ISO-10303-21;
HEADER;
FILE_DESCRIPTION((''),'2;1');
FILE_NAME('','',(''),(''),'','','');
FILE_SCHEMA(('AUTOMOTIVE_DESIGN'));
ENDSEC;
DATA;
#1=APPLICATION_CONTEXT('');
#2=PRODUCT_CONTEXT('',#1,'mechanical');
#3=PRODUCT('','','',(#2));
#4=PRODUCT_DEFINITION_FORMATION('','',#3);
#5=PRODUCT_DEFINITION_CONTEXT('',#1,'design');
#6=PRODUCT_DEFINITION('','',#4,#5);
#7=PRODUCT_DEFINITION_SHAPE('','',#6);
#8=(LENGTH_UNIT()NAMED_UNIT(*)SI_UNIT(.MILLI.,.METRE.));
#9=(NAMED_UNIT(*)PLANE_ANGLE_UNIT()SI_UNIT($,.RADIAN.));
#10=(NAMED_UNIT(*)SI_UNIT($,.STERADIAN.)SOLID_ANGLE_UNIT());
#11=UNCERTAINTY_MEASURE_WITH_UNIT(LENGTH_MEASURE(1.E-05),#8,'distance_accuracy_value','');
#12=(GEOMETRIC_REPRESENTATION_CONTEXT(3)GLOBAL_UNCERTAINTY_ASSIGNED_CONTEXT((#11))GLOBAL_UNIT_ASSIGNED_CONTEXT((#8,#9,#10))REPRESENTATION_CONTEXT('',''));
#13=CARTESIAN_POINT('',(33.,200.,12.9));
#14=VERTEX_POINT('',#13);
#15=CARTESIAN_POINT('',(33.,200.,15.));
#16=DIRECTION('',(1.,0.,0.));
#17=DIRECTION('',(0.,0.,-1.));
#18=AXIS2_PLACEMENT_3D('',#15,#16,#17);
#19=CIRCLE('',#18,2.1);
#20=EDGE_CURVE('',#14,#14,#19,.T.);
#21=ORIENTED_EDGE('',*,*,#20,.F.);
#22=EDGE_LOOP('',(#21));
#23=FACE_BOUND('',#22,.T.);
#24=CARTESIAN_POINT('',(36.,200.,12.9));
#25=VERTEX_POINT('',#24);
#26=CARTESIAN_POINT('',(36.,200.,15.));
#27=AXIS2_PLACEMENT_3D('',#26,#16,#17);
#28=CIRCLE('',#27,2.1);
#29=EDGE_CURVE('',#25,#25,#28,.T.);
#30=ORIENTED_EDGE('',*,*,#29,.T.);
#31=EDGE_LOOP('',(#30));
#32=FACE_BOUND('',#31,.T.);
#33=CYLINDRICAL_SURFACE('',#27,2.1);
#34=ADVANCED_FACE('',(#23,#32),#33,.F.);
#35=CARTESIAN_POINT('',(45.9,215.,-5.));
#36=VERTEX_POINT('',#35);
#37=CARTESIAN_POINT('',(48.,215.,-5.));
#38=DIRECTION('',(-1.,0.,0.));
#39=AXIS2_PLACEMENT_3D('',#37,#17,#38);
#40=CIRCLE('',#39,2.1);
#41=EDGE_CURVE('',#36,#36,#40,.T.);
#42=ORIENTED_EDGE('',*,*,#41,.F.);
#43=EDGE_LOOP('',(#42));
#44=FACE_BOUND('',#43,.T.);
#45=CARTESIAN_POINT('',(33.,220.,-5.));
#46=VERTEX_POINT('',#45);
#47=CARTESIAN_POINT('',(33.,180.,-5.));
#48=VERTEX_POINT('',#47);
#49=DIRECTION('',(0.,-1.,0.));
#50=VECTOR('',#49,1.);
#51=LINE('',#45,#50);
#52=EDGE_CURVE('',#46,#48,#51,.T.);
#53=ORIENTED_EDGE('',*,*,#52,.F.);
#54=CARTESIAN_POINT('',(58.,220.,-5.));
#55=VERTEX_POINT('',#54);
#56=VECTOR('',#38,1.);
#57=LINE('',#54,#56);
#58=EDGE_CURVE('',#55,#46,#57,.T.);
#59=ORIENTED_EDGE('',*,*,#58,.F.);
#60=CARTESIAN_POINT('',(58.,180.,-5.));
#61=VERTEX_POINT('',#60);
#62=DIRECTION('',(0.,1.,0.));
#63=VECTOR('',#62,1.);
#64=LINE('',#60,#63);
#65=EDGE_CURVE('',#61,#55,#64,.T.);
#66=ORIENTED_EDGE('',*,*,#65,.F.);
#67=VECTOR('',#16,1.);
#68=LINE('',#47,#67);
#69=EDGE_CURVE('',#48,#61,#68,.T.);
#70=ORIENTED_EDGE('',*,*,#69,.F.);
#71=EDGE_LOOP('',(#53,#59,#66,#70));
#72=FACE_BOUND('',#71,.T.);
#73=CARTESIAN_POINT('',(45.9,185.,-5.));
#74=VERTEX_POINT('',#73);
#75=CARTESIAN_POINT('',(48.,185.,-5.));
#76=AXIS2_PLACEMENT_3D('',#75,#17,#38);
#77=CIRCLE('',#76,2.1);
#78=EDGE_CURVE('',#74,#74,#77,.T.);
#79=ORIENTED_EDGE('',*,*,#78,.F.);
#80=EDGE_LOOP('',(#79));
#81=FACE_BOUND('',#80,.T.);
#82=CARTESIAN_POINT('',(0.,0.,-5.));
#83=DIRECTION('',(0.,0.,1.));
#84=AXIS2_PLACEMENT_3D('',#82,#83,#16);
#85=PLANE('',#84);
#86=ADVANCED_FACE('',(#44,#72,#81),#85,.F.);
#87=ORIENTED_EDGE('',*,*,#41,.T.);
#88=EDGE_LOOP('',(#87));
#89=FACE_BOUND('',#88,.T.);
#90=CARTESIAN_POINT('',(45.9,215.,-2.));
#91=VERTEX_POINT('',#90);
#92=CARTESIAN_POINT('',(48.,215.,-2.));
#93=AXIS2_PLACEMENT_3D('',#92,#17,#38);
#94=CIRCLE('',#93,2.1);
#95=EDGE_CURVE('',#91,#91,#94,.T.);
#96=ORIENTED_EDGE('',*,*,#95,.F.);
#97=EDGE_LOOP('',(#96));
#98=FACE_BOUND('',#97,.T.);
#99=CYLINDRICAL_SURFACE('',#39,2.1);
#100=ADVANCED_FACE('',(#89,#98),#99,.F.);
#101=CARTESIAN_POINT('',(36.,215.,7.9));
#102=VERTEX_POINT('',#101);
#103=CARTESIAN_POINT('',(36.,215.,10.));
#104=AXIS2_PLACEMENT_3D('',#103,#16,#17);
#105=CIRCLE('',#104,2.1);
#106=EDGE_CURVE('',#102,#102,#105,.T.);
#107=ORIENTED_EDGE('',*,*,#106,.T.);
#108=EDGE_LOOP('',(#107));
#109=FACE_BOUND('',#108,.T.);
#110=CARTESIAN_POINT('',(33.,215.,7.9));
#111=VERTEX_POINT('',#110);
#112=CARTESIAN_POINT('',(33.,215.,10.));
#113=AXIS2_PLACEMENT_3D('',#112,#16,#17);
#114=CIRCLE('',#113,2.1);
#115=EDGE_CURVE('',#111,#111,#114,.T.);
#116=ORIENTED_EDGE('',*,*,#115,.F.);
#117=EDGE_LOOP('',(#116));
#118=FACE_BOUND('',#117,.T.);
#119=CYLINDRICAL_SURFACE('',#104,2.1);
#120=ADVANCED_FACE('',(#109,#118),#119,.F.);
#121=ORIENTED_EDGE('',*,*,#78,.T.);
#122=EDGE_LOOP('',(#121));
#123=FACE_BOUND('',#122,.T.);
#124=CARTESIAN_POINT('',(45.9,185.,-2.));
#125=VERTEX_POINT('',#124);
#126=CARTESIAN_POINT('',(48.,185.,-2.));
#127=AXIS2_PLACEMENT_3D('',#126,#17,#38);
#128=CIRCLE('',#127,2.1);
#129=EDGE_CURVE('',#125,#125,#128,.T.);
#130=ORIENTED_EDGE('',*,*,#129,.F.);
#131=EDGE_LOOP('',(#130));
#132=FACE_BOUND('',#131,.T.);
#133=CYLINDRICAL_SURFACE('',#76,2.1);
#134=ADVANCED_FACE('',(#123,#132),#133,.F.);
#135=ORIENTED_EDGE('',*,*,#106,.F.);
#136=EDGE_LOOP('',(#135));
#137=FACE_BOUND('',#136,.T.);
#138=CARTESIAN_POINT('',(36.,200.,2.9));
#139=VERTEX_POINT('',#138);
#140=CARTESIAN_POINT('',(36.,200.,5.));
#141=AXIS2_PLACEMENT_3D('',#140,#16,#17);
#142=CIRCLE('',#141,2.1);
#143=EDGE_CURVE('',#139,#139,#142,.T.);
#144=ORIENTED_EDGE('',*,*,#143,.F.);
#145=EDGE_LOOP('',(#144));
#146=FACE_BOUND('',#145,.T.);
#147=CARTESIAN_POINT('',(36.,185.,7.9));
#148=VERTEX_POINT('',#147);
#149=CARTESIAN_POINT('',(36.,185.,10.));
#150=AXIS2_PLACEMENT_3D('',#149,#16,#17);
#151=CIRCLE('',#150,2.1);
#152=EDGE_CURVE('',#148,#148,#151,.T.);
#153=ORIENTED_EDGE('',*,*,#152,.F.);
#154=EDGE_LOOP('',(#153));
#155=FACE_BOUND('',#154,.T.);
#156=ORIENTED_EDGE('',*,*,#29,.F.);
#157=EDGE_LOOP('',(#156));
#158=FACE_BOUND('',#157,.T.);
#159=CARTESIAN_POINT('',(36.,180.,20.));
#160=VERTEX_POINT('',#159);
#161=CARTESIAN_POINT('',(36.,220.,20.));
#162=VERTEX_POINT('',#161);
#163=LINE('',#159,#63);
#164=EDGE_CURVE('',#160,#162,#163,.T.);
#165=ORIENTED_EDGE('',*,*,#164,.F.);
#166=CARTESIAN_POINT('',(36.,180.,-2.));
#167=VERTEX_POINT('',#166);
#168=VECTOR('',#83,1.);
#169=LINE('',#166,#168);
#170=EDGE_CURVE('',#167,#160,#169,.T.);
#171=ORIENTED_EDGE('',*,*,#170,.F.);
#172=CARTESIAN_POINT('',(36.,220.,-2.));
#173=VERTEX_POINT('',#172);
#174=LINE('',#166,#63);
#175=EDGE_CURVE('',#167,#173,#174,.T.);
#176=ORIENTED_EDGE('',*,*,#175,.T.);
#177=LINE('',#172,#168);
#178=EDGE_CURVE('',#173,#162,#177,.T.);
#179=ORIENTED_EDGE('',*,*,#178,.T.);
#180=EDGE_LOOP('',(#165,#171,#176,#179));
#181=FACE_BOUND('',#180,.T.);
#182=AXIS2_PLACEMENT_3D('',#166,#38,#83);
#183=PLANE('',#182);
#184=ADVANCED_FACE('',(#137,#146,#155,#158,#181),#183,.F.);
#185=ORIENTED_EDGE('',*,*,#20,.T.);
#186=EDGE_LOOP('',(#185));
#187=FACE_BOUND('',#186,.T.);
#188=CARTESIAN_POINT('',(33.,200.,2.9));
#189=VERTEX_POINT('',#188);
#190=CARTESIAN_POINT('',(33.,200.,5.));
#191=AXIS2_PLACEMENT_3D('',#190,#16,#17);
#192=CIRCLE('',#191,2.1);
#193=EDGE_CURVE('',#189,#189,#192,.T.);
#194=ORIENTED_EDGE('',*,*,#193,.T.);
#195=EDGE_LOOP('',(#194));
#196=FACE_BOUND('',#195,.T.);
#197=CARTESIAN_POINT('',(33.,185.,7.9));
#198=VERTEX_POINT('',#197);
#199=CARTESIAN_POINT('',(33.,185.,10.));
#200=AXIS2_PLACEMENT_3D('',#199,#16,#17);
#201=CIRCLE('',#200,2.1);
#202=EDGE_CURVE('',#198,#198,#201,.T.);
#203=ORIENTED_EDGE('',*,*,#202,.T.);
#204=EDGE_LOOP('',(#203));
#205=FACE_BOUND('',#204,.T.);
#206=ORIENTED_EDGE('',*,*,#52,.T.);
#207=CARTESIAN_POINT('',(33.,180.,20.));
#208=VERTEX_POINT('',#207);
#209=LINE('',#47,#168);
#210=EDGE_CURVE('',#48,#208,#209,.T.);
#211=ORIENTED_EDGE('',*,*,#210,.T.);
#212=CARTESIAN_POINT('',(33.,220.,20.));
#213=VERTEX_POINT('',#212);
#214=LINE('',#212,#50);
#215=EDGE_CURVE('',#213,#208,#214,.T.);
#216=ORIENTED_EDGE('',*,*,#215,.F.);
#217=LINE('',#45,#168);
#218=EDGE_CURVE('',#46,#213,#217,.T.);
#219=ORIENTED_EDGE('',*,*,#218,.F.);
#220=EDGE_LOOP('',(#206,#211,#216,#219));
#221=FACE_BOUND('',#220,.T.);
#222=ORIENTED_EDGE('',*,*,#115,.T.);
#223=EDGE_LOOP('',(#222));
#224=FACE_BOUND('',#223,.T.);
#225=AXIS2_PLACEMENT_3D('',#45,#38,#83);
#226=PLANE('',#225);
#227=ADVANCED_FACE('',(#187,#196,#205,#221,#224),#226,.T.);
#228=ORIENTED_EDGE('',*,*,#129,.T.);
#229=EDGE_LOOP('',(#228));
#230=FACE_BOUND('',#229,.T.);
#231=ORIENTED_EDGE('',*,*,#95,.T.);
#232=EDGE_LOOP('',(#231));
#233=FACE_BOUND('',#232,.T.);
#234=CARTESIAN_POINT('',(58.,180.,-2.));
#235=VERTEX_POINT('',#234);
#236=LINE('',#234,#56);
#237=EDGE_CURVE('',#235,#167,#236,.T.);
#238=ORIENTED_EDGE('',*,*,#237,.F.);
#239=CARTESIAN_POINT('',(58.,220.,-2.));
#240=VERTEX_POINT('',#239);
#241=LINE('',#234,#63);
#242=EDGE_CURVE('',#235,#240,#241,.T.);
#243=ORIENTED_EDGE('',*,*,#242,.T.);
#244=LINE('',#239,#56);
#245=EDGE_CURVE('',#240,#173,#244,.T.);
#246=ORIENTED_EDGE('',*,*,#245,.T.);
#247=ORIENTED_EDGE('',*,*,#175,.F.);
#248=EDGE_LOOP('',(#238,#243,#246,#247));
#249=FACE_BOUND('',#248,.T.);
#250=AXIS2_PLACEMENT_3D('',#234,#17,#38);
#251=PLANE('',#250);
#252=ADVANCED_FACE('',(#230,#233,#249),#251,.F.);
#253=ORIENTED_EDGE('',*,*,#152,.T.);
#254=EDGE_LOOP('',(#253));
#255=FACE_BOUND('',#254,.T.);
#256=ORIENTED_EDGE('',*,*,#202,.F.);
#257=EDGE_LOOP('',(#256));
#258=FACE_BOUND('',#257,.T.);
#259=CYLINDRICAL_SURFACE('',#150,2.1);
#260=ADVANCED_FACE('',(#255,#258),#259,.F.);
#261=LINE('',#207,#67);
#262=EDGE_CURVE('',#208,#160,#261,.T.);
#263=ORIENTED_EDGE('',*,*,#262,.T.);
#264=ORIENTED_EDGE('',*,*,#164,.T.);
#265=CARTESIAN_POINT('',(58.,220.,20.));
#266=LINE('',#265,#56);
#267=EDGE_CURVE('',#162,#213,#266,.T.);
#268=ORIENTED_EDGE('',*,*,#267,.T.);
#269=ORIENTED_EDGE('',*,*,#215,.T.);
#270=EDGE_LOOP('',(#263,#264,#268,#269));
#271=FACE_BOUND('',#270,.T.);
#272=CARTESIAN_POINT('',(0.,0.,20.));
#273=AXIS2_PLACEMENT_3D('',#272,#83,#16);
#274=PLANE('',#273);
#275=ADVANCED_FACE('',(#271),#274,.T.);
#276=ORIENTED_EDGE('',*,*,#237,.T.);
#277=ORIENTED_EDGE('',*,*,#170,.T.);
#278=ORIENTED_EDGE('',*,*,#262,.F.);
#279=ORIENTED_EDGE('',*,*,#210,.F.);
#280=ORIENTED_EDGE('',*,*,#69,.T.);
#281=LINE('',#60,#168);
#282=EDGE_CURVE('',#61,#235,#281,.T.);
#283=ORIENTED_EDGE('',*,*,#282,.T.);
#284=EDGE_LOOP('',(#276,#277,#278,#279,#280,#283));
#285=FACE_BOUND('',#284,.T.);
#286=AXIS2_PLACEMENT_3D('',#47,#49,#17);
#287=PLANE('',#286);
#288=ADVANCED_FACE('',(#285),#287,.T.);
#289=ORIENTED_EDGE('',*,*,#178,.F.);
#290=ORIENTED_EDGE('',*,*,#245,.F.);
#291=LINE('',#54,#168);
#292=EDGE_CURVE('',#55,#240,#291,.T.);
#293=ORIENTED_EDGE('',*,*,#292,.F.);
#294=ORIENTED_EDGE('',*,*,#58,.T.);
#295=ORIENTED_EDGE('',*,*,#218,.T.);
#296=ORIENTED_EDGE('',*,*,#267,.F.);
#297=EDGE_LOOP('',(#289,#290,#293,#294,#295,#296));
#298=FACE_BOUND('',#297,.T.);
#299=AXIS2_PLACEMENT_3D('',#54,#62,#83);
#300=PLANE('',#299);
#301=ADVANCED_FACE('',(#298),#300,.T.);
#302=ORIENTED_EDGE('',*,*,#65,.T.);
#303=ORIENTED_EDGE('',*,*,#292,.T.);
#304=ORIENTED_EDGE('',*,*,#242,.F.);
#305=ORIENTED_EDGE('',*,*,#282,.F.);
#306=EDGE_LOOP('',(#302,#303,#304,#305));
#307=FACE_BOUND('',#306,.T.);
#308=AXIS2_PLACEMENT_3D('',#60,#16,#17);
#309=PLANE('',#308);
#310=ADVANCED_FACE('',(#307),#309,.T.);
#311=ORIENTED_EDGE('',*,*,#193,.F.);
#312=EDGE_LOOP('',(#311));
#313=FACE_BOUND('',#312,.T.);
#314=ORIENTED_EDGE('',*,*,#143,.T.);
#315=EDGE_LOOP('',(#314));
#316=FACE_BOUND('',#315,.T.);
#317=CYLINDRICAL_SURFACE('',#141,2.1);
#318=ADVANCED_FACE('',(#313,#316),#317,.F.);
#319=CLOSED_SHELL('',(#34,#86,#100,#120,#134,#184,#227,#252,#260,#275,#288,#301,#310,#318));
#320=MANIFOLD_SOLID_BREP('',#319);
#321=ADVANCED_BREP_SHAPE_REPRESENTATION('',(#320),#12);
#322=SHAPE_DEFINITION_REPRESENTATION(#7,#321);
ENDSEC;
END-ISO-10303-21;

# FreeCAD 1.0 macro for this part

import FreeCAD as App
import Part
import Sketcher

V = App.Vector
Q = App.Units.Quantity

doc = App.newDocument("Part")
body = doc.addObject("PartDesign::Body", "Body")

sketch1 = body.newObject("Sketcher::SketchObject", "Sketch")
sketch1.AttachmentSupport = (doc.getObject("XY_Plane"), [""])
sketch1.MapMode = "FlatFace"
sketch1.AttachmentOffset = App.Placement(V(0, 0, 20), App.Rotation())
sketch1.addGeometry([
    Part.LineSegment(V(33, 220, 0), V(33, 180, 0)),
    Part.LineSegment(V(33, 180, 0), V(58, 180, 0)),
    Part.LineSegment(V(58, 180, 0), V(58, 220, 0)),
    Part.LineSegment(V(58, 220, 0), V(33, 220, 0)),
], False)
sketch1.addConstraint([
    Sketcher.Constraint("Coincident", 0, 2, 1, 1),
    Sketcher.Constraint("Coincident", 1, 2, 2, 1),
    Sketcher.Constraint("Coincident", 2, 2, 3, 1),
    Sketcher.Constraint("Coincident", 3, 2, 0, 1),
    Sketcher.Constraint("Vertical", 0),
    Sketcher.Constraint("Horizontal", 1),
    Sketcher.Constraint("Vertical", 2),
    Sketcher.Constraint("Horizontal", 3),
    Sketcher.Constraint("DistanceX", 1, 1, 1, 2, Q("25 mm")),
    Sketcher.Constraint("DistanceY", 0, 2, 0, 1, Q("40 mm")),
    Sketcher.Constraint("DistanceX", -1, 1, 0, 2, Q("33 mm")),
    Sketcher.Constraint("DistanceY", -1, 1, 0, 2, Q("180 mm")),
])
pad1 = body.newObject("PartDesign::Pad", "Pad")
pad1.Profile = sketch1
pad1.Length = 25
pad1.Reversed = True

sketch2 = body.newObject("Sketcher::SketchObject", "Sketch001")
sketch2.AttachmentSupport = (doc.getObject("XZ_Plane"), [""])
sketch2.MapMode = "FlatFace"
sketch2.AttachmentOffset = App.Placement(V(0, 0, -220), App.Rotation())
sketch2.addGeometry([
    Part.LineSegment(V(58, 20, 0), V(58, -2, 0)),
    Part.LineSegment(V(58, -2, 0), V(36, -2, 0)),
    Part.LineSegment(V(36, -2, 0), V(36, 20, 0)),
    Part.LineSegment(V(36, 20, 0), V(58, 20, 0)),
], False)
sketch2.addConstraint([
    Sketcher.Constraint("Coincident", 0, 2, 1, 1),
    Sketcher.Constraint("Coincident", 1, 2, 2, 1),
    Sketcher.Constraint("Coincident", 2, 2, 3, 1),
    Sketcher.Constraint("Coincident", 3, 2, 0, 1),
    Sketcher.Constraint("Vertical", 0),
    Sketcher.Constraint("Horizontal", 1),
    Sketcher.Constraint("Vertical", 2),
    Sketcher.Constraint("Horizontal", 3),
    Sketcher.Constraint("Equal", 3, 0),
    Sketcher.Constraint("DistanceX", 1, 2, 1, 1, Q("22 mm")),
    Sketcher.Constraint("DistanceX", -1, 1, 0, 2, Q("58 mm")),
    Sketcher.Constraint("DistanceY", 0, 2, -1, 1, Q("2 mm")),
])
pocket1 = body.newObject("PartDesign::Pocket", "Pocket")
pocket1.Profile = sketch2
pocket1.Type = "ThroughAll"
pocket1.Reversed = True

sketch3 = body.newObject("Sketcher::SketchObject", "Sketch002")
sketch3.AttachmentSupport = (doc.getObject("XY_Plane"), [""])
sketch3.MapMode = "FlatFace"
sketch3.AttachmentOffset = App.Placement(V(0, 0, -5), App.Rotation())
sketch3.addGeometry([
    Part.Circle(V(48, 185, 0), V(0, 0, 1), 2.1),
    Part.Circle(V(48, 215, 0), V(0, 0, 1), 2.1),
], False)
sketch3.addConstraint([
    Sketcher.Constraint("Equal", 0, 1),
    Sketcher.Constraint("Vertical", 0, 3, 1, 3),
    Sketcher.Constraint("Diameter", 0, Q("4.2 mm")),
    Sketcher.Constraint("DistanceX", -1, 1, 0, 3, Q("48 mm")),
    Sketcher.Constraint("DistanceY", -1, 1, 0, 3, Q("185 mm")),
    Sketcher.Constraint("DistanceY", -1, 1, 1, 3, Q("215 mm")),
])
doc.recompute()
hole = body.newObject("PartDesign::Hole", "Hole")
hole.Profile = sketch3
hole.ThreadType = "None"
hole.Diameter = 4.2
hole.DepthType = "Dimension"
hole.Depth = 25
hole.DrillPoint = "Flat"
hole.Reversed = True

sketch4 = body.newObject("Sketcher::SketchObject", "Sketch003")
sketch4.AttachmentSupport = (doc.getObject("YZ_Plane"), [""])
sketch4.MapMode = "FlatFace"
sketch4.AttachmentOffset = App.Placement(V(0, 0, 36), App.Rotation())
sketch4.addGeometry([
    Part.Circle(V(185, 10, 0), V(0, 0, 1), 2.1),
    Part.Circle(V(215, 10, 0), V(0, 0, 1), 2.1),
    Part.Circle(V(200, 5, 0), V(0, 0, 1), 2.1),
    Part.Circle(V(200, 15, 0), V(0, 0, 1), 2.1),
], False)
sketch4.addConstraint([
    Sketcher.Constraint("Equal", 0, 1),
    Sketcher.Constraint("Equal", 1, 2),
    Sketcher.Constraint("Equal", 2, 3),
    Sketcher.Constraint("Horizontal", 0, 3, 1, 3),
    Sketcher.Constraint("Vertical", 2, 3, 3, 3),
    Sketcher.Constraint("Diameter", 0, Q("4.2 mm")),
    Sketcher.Constraint("DistanceX", -1, 1, 0, 3, Q("185 mm")),
    Sketcher.Constraint("DistanceY", -1, 1, 0, 3, Q("10 mm")),
    Sketcher.Constraint("DistanceX", -1, 1, 1, 3, Q("215 mm")),
    Sketcher.Constraint("DistanceX", -1, 1, 2, 3, Q("200 mm")),
    Sketcher.Constraint("DistanceY", -1, 1, 2, 3, Q("5 mm")),
    Sketcher.Constraint("DistanceY", -1, 1, 3, 3, Q("15 mm")),
])
doc.recompute()
hole2 = body.newObject("PartDesign::Hole", "Hole001")
hole2.Profile = sketch4
hole2.ThreadType = "None"
hole2.Diameter = 4.2
hole2.DepthType = "ThroughAll"

doc.recompute()
